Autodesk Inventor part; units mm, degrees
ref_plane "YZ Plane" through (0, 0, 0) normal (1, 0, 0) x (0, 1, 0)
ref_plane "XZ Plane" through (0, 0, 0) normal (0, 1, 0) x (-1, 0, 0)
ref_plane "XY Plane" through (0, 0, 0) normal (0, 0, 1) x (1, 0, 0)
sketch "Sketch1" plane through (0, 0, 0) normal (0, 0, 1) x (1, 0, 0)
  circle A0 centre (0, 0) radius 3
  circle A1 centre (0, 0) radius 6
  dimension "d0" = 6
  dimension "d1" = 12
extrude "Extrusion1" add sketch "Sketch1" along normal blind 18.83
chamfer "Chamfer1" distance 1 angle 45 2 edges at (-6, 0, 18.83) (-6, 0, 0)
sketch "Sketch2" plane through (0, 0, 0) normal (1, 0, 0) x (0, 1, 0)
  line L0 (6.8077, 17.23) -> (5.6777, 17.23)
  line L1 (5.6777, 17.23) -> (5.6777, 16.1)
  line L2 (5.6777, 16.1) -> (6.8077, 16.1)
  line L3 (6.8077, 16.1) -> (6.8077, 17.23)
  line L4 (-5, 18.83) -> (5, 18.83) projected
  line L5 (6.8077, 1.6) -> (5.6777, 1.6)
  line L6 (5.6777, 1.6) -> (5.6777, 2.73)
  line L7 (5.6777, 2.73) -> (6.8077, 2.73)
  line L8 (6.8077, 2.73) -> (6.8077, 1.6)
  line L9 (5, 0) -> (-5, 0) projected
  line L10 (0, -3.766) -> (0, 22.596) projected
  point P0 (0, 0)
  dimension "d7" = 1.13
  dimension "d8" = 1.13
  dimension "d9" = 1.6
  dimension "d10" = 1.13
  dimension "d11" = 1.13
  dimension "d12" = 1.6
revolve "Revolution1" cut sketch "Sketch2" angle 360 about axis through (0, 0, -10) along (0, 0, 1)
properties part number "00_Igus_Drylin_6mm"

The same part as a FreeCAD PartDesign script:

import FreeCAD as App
import Part
import Sketcher
from FreeCAD import Vector
Q = App.Units.Quantity


def edges_at(feature, points):
    """Names of the edges that pass closest to the given points."""
    edges = feature.Shape.Edges
    near = lambda p: min(range(len(edges)), key=lambda i: edges[i].distToShape(Part.Vertex(*p))[0])
    return sorted({f"Edge{near(p) + 1}" for p in points})

doc = App.newDocument("Part")
params = doc.addObject("Spreadsheet::Sheet", "Params")
for row, (alias, value) in enumerate([
    ("sketch1_diameter", "12 mm"),
    ("sketch1_diameter2", "6 mm"),
    ("pad1_length", "18.83 mm"),
    ("chamfer_size", "1 mm"),
    ("sketch2_width", "1.13 mm"),
    ("groove_angle", "360 deg"),
], start=1):
    params.set(f"A{row}", alias)
    params.set(f"B{row}", "=" + value)
    params.setAlias(f"B{row}", alias)

body = doc.addObject("PartDesign::Body", "Body")

sketch1 = body.newObject("Sketcher::SketchObject", "Sketch")
sketch1.AttachmentSupport = (doc.getObject("XY_Plane"), [""])
sketch1.MapMode = "FlatFace"
sketch1.addGeometry([
    Part.Circle(Vector(0, 0, 0), Vector(0, 0, 1), 6),
    Part.Circle(Vector(0, 0, 0), Vector(0, 0, 1), 3),
], False)
sketch1.addConstraint([
    Sketcher.Constraint("Coincident", 0, 3, -1, 1),
    Sketcher.Constraint("Coincident", 1, 3, -1, 1),
    Sketcher.Constraint("Diameter", 0, Q("12 mm")),
    Sketcher.Constraint("Diameter", 1, Q("6 mm")),
])
sketch1.setExpression("Constraints[2]", "Params.sketch1_diameter")
sketch1.setExpression("Constraints[3]", "Params.sketch1_diameter2")
pad1 = body.newObject("PartDesign::Pad", "Pad")
pad1.Profile = sketch1
pad1.setExpression("Length", "Params.pad1_length")
doc.recompute()

chamfer = body.newObject("PartDesign::Chamfer", "Chamfer")
chamfer.Base = (pad1, edges_at(pad1, [(-6, 0, 18.83), (-6, 0, 0)]))
chamfer.setExpression("Size", "Params.chamfer_size")

sketch2 = body.newObject("Sketcher::SketchObject", "Sketch001")
sketch2.AttachmentSupport = (doc.getObject("YZ_Plane"), [""])
sketch2.MapMode = "FlatFace"
sketch2.addGeometry([
    Part.LineSegment(Vector(6.8, 16.1, 0), Vector(6.8, 17.2, 0)),
    Part.LineSegment(Vector(6.8, 17.2, 0), Vector(5.7, 17.2, 0)),
    Part.LineSegment(Vector(5.7, 17.2, 0), Vector(5.7, 16.1, 0)),
    Part.LineSegment(Vector(5.7, 16.1, 0), Vector(6.8, 16.1, 0)),
    Part.LineSegment(Vector(5.7, 1.6, 0), Vector(6.8, 1.6, 0)),
    Part.LineSegment(Vector(6.8, 1.6, 0), Vector(6.8, 2.7, 0)),
    Part.LineSegment(Vector(6.8, 2.7, 0), Vector(5.7, 2.7, 0)),
    Part.LineSegment(Vector(5.7, 2.7, 0), Vector(5.7, 1.6, 0)),
], False)
sketch2.addConstraint([
    Sketcher.Constraint("Coincident", 0, 2, 1, 1),
    Sketcher.Constraint("Coincident", 1, 2, 2, 1),
    Sketcher.Constraint("Coincident", 2, 2, 3, 1),
    Sketcher.Constraint("Coincident", 3, 2, 0, 1),
    Sketcher.Constraint("Coincident", 4, 2, 5, 1),
    Sketcher.Constraint("Coincident", 5, 2, 6, 1),
    Sketcher.Constraint("Coincident", 6, 2, 7, 1),
    Sketcher.Constraint("Coincident", 7, 2, 4, 1),
    Sketcher.Constraint("Vertical", 0),
    Sketcher.Constraint("Horizontal", 1),
    Sketcher.Constraint("Vertical", 2),
    Sketcher.Constraint("Horizontal", 3),
    Sketcher.Constraint("Horizontal", 4),
    Sketcher.Constraint("Vertical", 5),
    Sketcher.Constraint("Horizontal", 6),
    Sketcher.Constraint("Vertical", 7),
    Sketcher.Constraint("Vertical", 3, 2, 4, 2),
    Sketcher.Constraint("Vertical", 2, 2, 6, 2),
    Sketcher.Constraint("Equal", 6, 0),
    Sketcher.Constraint("Equal", 2, 5),
    Sketcher.Constraint("DistanceX", 1, 2, 1, 1, Q("1.13 mm")),
    Sketcher.Constraint("DistanceY", -1, 1, 4, 2, Q("1.6 mm")),
    Sketcher.Constraint("DistanceY", -1, 1, 2, 2, Q("16.1 mm")),
    Sketcher.Constraint("DistanceX", -1, 1, 0, 2, Q("6.8077 mm")),
])
sketch2.setExpression("Constraints[20]", "Params.sketch2_width")
groove = body.newObject("PartDesign::Groove", "Groove")
groove.Profile = sketch2
groove.ReferenceAxis = (sketch2, ["V_Axis"])
groove.setExpression("Angle", "Params.groove_angle")

doc.recompute()
